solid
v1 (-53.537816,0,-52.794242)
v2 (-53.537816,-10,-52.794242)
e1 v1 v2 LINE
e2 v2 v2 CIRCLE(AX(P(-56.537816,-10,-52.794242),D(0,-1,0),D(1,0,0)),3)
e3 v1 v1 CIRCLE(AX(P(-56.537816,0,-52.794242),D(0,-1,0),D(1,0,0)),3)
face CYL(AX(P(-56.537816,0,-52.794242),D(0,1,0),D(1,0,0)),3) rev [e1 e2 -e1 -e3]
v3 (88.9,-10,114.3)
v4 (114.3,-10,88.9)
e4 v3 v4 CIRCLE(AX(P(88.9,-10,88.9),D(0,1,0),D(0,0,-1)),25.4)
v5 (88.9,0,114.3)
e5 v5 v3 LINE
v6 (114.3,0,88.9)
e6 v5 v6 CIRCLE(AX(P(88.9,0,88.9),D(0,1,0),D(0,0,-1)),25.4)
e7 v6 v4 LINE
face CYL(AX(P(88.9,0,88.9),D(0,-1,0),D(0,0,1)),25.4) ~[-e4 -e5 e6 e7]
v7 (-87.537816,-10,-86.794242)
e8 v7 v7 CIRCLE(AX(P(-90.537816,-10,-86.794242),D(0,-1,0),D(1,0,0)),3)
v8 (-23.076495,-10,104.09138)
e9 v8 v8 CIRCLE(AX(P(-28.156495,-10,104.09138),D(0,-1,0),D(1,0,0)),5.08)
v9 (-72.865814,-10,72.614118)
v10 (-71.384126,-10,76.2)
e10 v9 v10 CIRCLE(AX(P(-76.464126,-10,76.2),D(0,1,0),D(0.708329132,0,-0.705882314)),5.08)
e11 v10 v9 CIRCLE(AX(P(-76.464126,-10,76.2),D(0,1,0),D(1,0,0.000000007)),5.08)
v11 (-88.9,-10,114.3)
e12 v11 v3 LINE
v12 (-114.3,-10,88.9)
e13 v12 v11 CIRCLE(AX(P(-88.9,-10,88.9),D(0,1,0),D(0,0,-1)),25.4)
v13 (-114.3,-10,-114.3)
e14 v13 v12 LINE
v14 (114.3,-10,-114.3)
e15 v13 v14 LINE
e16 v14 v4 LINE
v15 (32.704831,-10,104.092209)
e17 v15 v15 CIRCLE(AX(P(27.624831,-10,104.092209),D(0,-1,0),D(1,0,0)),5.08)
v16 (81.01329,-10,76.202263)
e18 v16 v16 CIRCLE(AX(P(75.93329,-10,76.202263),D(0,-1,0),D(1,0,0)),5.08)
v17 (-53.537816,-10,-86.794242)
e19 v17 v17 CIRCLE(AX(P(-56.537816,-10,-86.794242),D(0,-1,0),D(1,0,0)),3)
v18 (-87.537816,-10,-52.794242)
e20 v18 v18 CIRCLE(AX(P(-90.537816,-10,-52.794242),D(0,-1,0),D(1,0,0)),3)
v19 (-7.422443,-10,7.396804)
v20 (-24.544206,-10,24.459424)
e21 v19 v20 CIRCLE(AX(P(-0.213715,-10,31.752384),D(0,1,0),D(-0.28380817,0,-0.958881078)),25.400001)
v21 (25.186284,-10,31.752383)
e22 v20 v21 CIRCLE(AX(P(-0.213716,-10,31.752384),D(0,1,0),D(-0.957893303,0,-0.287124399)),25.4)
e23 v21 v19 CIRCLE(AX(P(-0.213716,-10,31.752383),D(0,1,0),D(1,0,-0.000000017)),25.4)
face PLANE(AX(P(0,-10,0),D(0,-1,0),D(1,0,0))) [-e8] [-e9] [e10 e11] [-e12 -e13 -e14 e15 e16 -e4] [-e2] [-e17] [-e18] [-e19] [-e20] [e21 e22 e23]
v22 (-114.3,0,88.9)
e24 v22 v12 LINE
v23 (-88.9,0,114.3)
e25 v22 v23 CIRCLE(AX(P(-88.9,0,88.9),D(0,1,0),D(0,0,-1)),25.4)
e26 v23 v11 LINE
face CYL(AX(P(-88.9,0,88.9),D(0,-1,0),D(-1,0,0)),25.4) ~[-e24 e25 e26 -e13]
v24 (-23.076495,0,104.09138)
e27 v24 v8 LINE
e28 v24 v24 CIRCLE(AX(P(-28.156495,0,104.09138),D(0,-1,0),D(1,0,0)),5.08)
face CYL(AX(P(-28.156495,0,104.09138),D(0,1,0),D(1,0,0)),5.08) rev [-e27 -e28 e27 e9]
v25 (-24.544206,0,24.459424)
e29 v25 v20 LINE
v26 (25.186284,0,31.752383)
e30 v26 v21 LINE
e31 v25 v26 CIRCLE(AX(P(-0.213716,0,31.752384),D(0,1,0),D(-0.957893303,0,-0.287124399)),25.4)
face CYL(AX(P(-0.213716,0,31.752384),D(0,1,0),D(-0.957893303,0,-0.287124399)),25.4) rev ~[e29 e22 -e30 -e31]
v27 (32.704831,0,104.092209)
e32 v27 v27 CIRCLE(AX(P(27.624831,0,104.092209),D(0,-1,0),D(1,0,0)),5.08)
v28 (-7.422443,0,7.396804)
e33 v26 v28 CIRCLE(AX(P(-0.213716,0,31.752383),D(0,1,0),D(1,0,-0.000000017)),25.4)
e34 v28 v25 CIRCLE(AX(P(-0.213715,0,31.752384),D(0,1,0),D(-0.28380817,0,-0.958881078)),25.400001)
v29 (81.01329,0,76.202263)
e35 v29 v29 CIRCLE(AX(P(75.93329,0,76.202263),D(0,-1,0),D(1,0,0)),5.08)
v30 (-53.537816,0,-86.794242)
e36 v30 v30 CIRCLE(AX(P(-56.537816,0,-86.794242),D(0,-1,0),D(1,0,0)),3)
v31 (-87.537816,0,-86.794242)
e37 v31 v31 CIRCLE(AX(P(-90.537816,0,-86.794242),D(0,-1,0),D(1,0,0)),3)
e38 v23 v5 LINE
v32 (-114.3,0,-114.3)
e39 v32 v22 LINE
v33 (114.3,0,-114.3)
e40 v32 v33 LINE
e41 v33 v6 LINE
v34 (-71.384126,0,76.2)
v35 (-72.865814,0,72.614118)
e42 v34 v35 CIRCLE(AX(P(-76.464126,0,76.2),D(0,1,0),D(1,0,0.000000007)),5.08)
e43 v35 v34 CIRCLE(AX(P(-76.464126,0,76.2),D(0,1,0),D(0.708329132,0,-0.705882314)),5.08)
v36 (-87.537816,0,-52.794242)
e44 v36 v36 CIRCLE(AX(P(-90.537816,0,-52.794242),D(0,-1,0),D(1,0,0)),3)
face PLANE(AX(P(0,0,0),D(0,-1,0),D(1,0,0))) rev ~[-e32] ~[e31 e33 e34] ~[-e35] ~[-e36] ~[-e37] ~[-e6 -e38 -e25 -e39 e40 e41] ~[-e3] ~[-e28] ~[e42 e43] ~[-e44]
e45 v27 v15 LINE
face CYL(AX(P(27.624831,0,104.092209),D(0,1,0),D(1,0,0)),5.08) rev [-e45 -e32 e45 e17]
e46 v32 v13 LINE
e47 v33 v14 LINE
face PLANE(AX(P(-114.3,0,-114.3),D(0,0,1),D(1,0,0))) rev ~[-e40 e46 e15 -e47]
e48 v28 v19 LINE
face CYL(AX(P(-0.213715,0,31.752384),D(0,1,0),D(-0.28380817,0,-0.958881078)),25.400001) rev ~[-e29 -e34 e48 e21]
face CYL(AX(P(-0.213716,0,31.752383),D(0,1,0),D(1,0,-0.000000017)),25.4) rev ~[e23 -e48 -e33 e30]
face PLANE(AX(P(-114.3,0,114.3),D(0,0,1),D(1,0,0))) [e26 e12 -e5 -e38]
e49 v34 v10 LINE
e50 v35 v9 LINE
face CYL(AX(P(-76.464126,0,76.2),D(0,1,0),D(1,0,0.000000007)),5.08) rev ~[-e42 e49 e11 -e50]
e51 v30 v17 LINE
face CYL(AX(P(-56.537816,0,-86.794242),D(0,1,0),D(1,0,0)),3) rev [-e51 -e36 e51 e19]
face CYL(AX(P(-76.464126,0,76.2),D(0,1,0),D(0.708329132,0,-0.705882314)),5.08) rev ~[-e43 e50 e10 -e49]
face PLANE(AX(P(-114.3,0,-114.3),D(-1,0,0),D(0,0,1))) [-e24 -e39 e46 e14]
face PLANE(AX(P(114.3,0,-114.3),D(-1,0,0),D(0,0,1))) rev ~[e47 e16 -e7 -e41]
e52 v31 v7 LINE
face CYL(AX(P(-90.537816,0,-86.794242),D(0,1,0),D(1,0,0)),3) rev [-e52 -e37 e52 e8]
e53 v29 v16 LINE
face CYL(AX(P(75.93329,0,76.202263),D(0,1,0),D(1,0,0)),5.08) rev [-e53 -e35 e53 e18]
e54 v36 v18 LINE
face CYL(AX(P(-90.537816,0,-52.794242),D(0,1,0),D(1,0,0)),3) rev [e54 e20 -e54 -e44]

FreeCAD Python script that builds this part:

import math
import FreeCAD as App
import Part
import Sketcher

V = App.Vector
Q = App.Units.Quantity


def edges_at(feature, points):
    """Names of the edges that pass closest to the given points."""
    edges = feature.Shape.Edges
    near = lambda p: min(range(len(edges)), key=lambda i: edges[i].distToShape(Part.Vertex(*p))[0])
    return sorted({f"Edge{near(p) + 1}" for p in points})


def add_polygon(sketch, points):
    """Adds a closed chain of lines whose ends are joined by coincident constraints."""
    first, n = sketch.GeometryCount, len(points)
    for a, b in zip(points, points[1:] + points[:1]):
        sketch.addGeometry(Part.LineSegment(App.Vector(*a, 0), App.Vector(*b, 0)), False)
    for i in range(n):
        sketch.addConstraint(Sketcher.Constraint("Coincident", first + i, 2, first + (i + 1) % n, 1))

doc = App.newDocument("Part")
body = doc.addObject("PartDesign::Body", "Body")

sketch1 = body.newObject("Sketcher::SketchObject", "Sketch")
sketch1.AttachmentSupport = (doc.getObject("XZ_Plane"), [""])
sketch1.MapMode = "FlatFace"
add_polygon(sketch1, [(-114.3, 114.3), (-114.3, -114.3), (114.3, -114.3), (114.3, 114.3)])
sketch1.addGeometry(Part.Circle(V(-90.5, -86.8, 0), V(0, 0, 1), 3), False)
sketch1.addGeometry(Part.Circle(V(-56.5, -86.8, 0), V(0, 0, 1), 3), False)
sketch1.addGeometry(Part.Circle(V(-90.5, -52.8, 0), V(0, 0, 1), 3), False)
sketch1.addGeometry(Part.Circle(V(-56.5, -52.8, 0), V(0, 0, 1), 3), False)
sketch1.addGeometry(Part.ArcOfCircle(Part.Circle(V(-76.5, 76.2, 0), V(0, 0, 1), 5.1), math.radians(-45), math.radians(0)), False)
sketch1.addGeometry(Part.ArcOfCircle(Part.Circle(V(-76.5, 76.2, 0), V(0, 0, 1), 5.1), math.radians(0), math.radians(315)), False)
sketch1.addGeometry(Part.Circle(V(-28.2, 104.1, 0), V(0, 0, 1), 5.1), False)
sketch1.addGeometry(Part.ArcOfCircle(Part.Circle(V(-0.2, 31.8, 0), V(0, 0, 1), 25.4), math.radians(-106), math.radians(0)), False)
sketch1.addGeometry(Part.ArcOfCircle(Part.Circle(V(-0.2, 31.8, 0), V(0, 0, 1), 25.4), math.radians(-163), math.radians(-106)), False)
sketch1.addGeometry(Part.ArcOfCircle(Part.Circle(V(-0.2, 31.8, 0), V(0, 0, 1), 25.4), math.radians(0), math.radians(197)), False)
sketch1.addGeometry(Part.Circle(V(27.6, 104.1, 0), V(0, 0, 1), 5.1), False)
sketch1.addGeometry(Part.Circle(V(75.9, 76.2, 0), V(0, 0, 1), 5.1), False)
sketch1.addConstraint(Sketcher.Constraint("Tangent", 8, 1, 9, 2))
sketch1.addConstraint(Sketcher.Constraint("Coincident", 9, 1, 8, 2))
sketch1.addConstraint(Sketcher.Constraint("Tangent", 11, 1, 12, 2))
sketch1.addConstraint(Sketcher.Constraint("Tangent", 12, 1, 13, 2))
sketch1.addConstraint(Sketcher.Constraint("Tangent", 13, 1, 11, 2))
sketch1.addConstraint(Sketcher.Constraint("Vertical", 0))
sketch1.addConstraint(Sketcher.Constraint("Horizontal", 1))
sketch1.addConstraint(Sketcher.Constraint("Vertical", 2))
sketch1.addConstraint(Sketcher.Constraint("Horizontal", 3))
sketch1.addConstraint(Sketcher.Constraint("Equal", 4, 5))
sketch1.addConstraint(Sketcher.Constraint("Equal", 5, 6))
sketch1.addConstraint(Sketcher.Constraint("Equal", 6, 7))
sketch1.addConstraint(Sketcher.Constraint("Equal", 9, 10))
sketch1.addConstraint(Sketcher.Constraint("Equal", 10, 14))
sketch1.addConstraint(Sketcher.Constraint("Equal", 14, 15))
sketch1.addConstraint(Sketcher.Constraint("Symmetric", 0, 2, 2, 2, -1, 1))
sketch1.addConstraint(Sketcher.Constraint("Horizontal", 4, 3, 5, 3))
sketch1.addConstraint(Sketcher.Constraint("Horizontal", 6, 3, 7, 3))
sketch1.addConstraint(Sketcher.Constraint("Horizontal", 8, 3, 9, 1))
sketch1.addConstraint(Sketcher.Constraint("Horizontal", 12, 3, 13, 1))
sketch1.addConstraint(Sketcher.Constraint("Vertical", 4, 3, 6, 3))
sketch1.addConstraint(Sketcher.Constraint("Vertical", 5, 3, 7, 3))
sketch1.addConstraint(Sketcher.Constraint("Equal", 3, 0))
sketch1.addConstraint(Sketcher.Constraint("Radius", 11, Q("1 in")))
sketch1.addConstraint(Sketcher.Constraint("Diameter", 10, Q("0.4 in")))
sketch1.addConstraint(Sketcher.Constraint("DistanceX", 1, 1, 1, 2, Q("9 in")))
sketch1.addConstraint(Sketcher.Constraint("DistanceY", -1, 1, 8, 3, Q("3 in")))
sketch1.addConstraint(Sketcher.Constraint("Diameter", 4, Q("6 mm")))
sketch1.addConstraint(Sketcher.Constraint("DistanceX", 4, 3, 5, 3, Q("34 mm")))
sketch1.addConstraint(Sketcher.Constraint("DistanceY", 4, 3, 6, 3, Q("34 mm")))
sketch1.addConstraint(Sketcher.Constraint("DistanceX", 7, 3, 11, 3, Q("56.3241 mm")))
sketch1.addConstraint(Sketcher.Constraint("DistanceY", 4, 3, -1, 1, Q("86.794242 mm")))
sketch1.addConstraint(Sketcher.Constraint("DistanceY", -1, 1, 10, 3, Q("104.09138 mm")))
sketch1.addConstraint(Sketcher.Constraint("DistanceX", -1, 1, 14, 3, Q("27.624831 mm")))
sketch1.addConstraint(Sketcher.Constraint("DistanceY", -1, 1, 14, 3, Q("104.092209 mm")))
sketch1.addConstraint(Sketcher.Constraint("DistanceX", -1, 1, 15, 3, Q("75.93329 mm")))
sketch1.addConstraint(Sketcher.Constraint("DistanceY", -1, 1, 8, 1, Q("72.614118 mm")))
sketch1.addConstraint(Sketcher.Constraint("DistanceX", 6, 3, 8, 3, Q("14.07369 mm")))
sketch1.addConstraint(Sketcher.Constraint("DistanceX", 8, 3, 10, 3, Q("48.307631 mm")))
sketch1.addConstraint(Sketcher.Constraint("DistanceY", 12, 3, 15, 3, Q("44.449879 mm")))
sketch1.addConstraint(Sketcher.Constraint("DistanceY", 11, 1, 11, 3, Q("24.355579 mm")))
sketch1.addConstraint(Sketcher.Constraint("DistanceY", 11, 1, 12, 1, Q("17.06262 mm")))
sketch1.addConstraint(Sketcher.Constraint("DistanceX", 4, 3, -1, 1, Q("90.537816 mm")))
sketch1.addConstraint(Sketcher.Constraint("DistanceY", -1, 1, 11, 3, Q("31.752383 mm")))
pad1 = body.newObject("PartDesign::Pad", "Pad")
pad1.Profile = sketch1
pad1.Length = 10
doc.recompute()

fillet = body.newObject("PartDesign::Fillet", "Fillet")
fillet.Base = (pad1, edges_at(pad1, [(114.3, -5, 114.3), (-114.3, -5, 114.3)]))
fillet.Radius = Q("1 in")

doc.recompute()
